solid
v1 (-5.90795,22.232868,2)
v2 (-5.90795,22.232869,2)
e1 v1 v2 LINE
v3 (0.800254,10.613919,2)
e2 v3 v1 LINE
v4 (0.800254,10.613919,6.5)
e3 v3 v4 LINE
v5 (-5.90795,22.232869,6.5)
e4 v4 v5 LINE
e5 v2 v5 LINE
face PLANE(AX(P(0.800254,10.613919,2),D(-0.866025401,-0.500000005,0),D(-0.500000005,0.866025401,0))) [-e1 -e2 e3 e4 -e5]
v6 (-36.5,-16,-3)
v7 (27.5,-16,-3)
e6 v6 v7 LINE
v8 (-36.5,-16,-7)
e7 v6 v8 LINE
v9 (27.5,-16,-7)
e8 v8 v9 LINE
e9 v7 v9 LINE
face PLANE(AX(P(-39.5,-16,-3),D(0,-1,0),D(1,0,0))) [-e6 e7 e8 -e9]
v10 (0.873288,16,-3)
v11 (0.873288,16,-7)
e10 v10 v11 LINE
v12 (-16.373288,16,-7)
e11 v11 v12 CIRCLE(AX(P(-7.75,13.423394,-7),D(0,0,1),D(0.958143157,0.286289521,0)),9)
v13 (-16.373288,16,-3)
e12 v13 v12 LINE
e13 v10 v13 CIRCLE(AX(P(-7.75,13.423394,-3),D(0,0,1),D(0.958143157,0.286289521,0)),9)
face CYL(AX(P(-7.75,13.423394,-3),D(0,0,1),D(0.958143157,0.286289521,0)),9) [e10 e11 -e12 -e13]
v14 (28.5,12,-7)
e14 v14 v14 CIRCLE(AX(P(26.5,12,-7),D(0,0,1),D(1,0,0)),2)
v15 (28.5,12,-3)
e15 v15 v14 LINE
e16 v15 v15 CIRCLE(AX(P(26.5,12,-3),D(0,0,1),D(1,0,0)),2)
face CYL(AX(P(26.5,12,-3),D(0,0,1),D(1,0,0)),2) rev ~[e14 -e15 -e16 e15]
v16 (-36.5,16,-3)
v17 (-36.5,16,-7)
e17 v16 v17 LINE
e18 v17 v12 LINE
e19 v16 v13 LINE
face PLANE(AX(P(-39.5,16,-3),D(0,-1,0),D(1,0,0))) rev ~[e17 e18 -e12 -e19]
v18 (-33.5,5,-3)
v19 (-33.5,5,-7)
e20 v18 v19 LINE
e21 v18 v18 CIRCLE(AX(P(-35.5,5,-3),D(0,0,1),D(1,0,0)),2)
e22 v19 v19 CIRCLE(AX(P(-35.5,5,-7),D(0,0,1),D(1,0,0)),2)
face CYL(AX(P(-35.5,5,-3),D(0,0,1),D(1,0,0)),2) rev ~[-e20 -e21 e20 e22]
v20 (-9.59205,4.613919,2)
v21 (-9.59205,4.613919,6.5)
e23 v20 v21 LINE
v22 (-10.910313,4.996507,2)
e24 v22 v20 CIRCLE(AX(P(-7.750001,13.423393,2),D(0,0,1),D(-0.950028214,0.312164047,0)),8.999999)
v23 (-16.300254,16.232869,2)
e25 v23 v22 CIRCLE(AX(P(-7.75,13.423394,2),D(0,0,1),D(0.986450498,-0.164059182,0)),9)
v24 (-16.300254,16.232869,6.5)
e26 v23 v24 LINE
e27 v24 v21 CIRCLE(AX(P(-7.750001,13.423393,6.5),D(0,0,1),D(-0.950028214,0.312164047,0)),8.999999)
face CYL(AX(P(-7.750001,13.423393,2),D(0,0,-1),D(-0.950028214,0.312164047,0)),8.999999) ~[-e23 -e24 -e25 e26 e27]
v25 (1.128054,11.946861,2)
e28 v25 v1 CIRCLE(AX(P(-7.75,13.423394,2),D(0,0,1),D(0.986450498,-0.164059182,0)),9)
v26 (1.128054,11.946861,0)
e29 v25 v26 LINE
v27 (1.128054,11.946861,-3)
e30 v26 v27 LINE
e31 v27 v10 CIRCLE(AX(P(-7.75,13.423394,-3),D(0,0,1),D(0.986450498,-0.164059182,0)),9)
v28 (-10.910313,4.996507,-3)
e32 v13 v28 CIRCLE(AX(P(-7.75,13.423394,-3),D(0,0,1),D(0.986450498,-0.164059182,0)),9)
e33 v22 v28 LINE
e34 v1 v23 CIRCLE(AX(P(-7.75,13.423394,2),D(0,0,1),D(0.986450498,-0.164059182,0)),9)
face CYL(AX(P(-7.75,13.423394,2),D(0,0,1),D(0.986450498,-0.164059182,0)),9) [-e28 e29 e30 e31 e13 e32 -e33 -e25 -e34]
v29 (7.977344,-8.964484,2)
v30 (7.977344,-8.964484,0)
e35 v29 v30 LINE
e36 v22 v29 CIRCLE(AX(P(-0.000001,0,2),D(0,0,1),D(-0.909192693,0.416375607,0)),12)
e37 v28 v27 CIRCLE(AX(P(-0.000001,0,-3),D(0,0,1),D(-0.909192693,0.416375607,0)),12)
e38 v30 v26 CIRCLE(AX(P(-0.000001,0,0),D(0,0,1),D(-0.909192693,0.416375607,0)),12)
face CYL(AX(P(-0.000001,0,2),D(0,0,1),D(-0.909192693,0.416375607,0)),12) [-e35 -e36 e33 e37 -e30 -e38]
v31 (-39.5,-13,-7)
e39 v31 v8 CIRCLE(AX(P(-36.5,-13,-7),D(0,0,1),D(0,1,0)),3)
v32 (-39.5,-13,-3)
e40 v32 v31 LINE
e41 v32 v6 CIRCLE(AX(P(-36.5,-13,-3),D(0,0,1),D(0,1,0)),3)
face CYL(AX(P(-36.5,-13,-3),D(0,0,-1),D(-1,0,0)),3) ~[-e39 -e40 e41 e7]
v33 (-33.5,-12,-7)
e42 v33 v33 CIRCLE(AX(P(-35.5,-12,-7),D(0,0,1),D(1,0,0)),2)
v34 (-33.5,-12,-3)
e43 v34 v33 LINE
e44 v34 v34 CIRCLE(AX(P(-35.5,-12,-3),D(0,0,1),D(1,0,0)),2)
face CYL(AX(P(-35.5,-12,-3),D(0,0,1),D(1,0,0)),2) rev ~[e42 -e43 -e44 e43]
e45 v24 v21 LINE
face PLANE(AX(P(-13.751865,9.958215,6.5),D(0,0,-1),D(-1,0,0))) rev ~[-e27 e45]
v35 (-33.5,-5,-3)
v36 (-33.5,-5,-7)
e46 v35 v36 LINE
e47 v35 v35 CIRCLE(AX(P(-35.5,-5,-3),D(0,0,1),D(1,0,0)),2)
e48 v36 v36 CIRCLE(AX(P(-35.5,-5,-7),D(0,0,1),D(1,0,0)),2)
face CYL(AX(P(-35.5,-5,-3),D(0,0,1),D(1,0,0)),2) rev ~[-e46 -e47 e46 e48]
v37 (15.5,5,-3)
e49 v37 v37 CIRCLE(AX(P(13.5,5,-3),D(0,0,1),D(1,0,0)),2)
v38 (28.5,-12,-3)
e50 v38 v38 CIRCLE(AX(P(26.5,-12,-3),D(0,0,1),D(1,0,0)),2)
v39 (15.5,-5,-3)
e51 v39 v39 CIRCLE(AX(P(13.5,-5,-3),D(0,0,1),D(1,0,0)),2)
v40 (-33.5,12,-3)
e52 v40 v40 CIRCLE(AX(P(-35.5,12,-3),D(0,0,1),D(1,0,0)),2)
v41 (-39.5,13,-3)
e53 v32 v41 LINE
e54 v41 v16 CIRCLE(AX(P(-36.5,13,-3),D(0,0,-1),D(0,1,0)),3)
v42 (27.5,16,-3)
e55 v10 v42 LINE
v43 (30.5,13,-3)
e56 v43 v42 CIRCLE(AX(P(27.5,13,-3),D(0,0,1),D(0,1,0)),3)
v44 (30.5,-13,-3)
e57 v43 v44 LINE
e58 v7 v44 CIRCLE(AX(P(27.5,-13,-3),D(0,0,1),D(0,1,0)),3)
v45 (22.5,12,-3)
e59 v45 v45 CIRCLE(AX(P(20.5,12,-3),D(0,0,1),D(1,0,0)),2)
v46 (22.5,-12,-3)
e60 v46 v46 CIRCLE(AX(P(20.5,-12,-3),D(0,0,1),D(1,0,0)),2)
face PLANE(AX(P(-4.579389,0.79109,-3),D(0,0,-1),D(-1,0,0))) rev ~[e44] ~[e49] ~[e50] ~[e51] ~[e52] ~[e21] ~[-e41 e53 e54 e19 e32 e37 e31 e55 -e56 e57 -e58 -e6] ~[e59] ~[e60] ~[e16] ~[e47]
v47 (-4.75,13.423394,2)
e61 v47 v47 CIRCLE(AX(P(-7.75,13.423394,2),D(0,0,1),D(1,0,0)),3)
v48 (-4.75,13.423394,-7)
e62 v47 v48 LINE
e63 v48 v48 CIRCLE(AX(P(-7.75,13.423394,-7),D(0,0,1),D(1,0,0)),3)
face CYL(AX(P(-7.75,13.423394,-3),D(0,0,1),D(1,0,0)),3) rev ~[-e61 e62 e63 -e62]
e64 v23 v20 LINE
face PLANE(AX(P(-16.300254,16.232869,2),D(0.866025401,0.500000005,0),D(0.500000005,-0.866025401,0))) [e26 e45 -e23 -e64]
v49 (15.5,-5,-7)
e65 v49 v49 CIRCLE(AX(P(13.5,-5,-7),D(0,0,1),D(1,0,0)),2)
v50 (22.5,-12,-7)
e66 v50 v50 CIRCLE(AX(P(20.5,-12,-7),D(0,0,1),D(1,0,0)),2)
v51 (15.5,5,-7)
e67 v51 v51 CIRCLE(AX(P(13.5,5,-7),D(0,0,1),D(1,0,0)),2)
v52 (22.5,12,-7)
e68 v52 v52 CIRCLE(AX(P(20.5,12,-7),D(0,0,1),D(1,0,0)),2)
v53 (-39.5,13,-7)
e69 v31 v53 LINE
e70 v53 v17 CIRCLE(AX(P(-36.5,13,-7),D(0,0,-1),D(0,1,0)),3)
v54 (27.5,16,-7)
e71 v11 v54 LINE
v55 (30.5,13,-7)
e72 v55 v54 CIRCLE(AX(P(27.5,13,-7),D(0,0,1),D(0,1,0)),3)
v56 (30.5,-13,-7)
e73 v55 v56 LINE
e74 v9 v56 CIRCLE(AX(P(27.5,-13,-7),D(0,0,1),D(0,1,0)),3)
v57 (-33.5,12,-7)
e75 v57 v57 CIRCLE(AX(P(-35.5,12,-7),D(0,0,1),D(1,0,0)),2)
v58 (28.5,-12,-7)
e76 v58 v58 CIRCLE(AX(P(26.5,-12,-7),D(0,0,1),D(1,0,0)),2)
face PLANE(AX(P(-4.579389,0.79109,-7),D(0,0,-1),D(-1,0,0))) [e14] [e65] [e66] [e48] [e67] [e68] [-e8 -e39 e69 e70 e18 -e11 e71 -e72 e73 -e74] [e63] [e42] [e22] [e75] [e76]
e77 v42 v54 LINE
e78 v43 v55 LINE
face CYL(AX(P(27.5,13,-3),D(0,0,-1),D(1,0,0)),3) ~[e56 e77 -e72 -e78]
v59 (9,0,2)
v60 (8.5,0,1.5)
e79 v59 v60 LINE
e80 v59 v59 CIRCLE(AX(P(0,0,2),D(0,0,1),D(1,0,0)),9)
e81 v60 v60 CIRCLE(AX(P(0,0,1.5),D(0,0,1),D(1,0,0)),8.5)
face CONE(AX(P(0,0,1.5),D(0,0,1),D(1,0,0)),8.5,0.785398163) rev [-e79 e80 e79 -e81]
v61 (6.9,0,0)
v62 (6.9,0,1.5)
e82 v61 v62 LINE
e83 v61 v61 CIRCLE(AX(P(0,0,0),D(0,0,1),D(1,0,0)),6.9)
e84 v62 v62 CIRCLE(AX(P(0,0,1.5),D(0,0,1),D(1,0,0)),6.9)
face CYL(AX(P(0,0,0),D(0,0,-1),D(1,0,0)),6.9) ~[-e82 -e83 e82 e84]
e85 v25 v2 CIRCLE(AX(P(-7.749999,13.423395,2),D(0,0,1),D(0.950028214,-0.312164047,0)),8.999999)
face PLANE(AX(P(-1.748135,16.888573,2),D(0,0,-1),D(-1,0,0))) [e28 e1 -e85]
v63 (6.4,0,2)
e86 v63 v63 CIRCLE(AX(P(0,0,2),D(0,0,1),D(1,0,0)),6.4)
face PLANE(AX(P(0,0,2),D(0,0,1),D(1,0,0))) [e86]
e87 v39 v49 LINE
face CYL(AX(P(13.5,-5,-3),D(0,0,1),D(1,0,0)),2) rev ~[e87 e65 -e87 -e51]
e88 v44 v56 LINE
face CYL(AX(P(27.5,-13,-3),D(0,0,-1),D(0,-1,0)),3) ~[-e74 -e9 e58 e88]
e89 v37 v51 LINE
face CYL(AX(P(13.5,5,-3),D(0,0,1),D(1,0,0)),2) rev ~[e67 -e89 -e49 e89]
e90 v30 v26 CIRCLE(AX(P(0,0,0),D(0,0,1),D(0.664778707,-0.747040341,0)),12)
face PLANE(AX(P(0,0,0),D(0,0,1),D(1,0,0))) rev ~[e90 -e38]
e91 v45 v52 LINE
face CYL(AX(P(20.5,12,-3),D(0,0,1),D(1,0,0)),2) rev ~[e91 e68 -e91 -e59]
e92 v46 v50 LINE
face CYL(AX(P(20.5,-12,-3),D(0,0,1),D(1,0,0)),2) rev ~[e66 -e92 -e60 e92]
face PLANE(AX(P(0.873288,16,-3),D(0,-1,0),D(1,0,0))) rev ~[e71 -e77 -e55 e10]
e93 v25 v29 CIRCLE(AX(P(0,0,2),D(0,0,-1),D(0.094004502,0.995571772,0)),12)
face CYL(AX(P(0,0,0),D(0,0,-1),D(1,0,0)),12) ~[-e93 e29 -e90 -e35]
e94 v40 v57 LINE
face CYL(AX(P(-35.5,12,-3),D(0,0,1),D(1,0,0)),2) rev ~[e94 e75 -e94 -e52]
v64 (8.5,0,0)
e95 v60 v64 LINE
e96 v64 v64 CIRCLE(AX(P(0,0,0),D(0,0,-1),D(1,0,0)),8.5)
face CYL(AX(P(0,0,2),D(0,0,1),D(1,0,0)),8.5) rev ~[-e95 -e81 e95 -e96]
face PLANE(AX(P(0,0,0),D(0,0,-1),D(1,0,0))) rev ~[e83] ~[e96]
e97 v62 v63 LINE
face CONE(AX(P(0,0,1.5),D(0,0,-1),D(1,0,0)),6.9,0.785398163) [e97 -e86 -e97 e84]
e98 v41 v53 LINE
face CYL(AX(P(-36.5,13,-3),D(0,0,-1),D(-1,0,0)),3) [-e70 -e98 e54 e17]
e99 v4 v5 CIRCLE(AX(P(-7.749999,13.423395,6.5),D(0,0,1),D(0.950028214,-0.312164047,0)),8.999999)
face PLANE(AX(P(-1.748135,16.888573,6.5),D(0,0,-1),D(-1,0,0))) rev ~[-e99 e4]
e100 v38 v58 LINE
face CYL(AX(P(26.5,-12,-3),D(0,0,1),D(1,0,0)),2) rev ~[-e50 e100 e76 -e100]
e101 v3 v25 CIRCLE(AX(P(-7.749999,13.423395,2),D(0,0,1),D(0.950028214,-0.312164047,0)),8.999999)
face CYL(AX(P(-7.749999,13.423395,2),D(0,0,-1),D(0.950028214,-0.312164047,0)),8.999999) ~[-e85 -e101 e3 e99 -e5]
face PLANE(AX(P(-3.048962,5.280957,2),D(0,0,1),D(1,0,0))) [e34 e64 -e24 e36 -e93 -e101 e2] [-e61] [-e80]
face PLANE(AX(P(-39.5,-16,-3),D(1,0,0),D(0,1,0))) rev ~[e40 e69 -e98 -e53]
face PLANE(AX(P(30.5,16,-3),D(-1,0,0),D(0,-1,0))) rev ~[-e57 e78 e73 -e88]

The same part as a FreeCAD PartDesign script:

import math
import FreeCAD as App
import Part
import Sketcher
Q = App.Units.Quantity


def edges_at(feature, points):
    """Names of the edges that pass closest to the given points."""
    edges = feature.Shape.Edges
    near = lambda p: min(range(len(edges)), key=lambda i: edges[i].distToShape(Part.Vertex(*p))[0])
    return sorted({f"Edge{near(p) + 1}" for p in points})

doc = App.newDocument("Part")
params = doc.addObject("Spreadsheet::Sheet", "Params")
for row, (alias, value) in enumerate([
    ("sketch1_diameter", "24 mm"),
    ("sketch1_diameter2", "17 mm"),
    ("pad1_length", "2 mm"),
    ("sketch2_diameter", "17 mm"),
    ("sketch2_diameter2", "6 mm"),
    ("sketch2_radius", "9 mm"),
    ("sketch2_radius2", "12 mm"),
    ("pad2_length", "5 mm"),
    ("sketch3_diameter", "17 mm"),
    ("pad3_length", "3 mm"),
    ("sketch4_diameter", "13.8 mm"),
    ("pad4_length", "2 mm"),
    ("sketch5_radius", "8.999999 mm"),
    ("pad5_length", "4.5 mm"),
    ("sketch6_diameter", "4 mm"),
    ("sketch6_radius", "9 mm"),
    ("sketch6_width", "70 mm"),
    ("sketch6_height", "32 mm"),
    ("pad6_length", "4 mm"),
    ("sketch7_diameter", "6 mm"),
    ("pocket1_length", "5 mm"),
    ("chamfer_size", "0.5 mm"),
    ("chamfer2_size", "0.5 mm"),
    ("fillet_radius", "3 mm"),
], start=1):
    params.set(f"A{row}", alias)
    params.set(f"B{row}", "=" + value)
    params.setAlias(f"B{row}", alias)

body = doc.addObject("PartDesign::Body", "Body")

# Sketch on XY plane
sketch1 = doc.addObject("Sketcher::SketchObject", "Sketch")
body.addObject(sketch1)
sketch1.AttachmentSupport = (doc.XY_Plane, [""])
sketch1.MapMode = "FlatFace"
sketch1.addGeometry([
    Part.Circle(App.Vector(0, 0, 0), App.Vector(0, 0, 1), 12),
    Part.Circle(App.Vector(0, 0, 0), App.Vector(0, 0, 1), 8),
], False)
sketch1.addConstraint([
    Sketcher.Constraint("Coincident", 0, 3, -1, 1),
    Sketcher.Constraint("Coincident", 1, 3, -1, 1),
    Sketcher.Constraint("Diameter", 0, 24.0),
    Sketcher.Constraint("Diameter", 1, 17.0),
])
sketch1.setExpression("Constraints[2]", "Params.sketch1_diameter")
sketch1.setExpression("Constraints[3]", "Params.sketch1_diameter2")
pad1 = doc.addObject("PartDesign::Pad", "Pad")
body.addObject(pad1)
pad1.Profile = sketch1
pad1.setExpression("Length", "Params.pad1_length")

# Sketch on XY plane
sketch2 = doc.addObject("Sketcher::SketchObject", "Sketch001")
body.addObject(sketch2)
sketch2.AttachmentSupport = (doc.XY_Plane, [""])
sketch2.MapMode = "FlatFace"
sketch2.AttachmentOffset = App.Placement(App.Vector(0, 0, 2), App.Rotation())
sketch2.addGeometry([
    Part.ArcOfCircle(Part.Circle(App.Vector(-7.8, 13.4, 0), App.Vector(0, 0, 1), 9), math.radians(-9), math.radians(249)),
    Part.ArcOfCircle(Part.Circle(App.Vector(0, 0, 0), App.Vector(0, 0, 1), 12), math.radians(155), math.radians(445)),
    Part.Circle(App.Vector(0, 0, 0), App.Vector(0, 0, 1), 8.5),
    Part.Circle(App.Vector(-7.8, 13.4, 0), App.Vector(0, 0, 1), 3),
], False)
sketch2.addConstraint([
    Sketcher.Constraint("Coincident", 0, 1, 1, 2),
    Sketcher.Constraint("Coincident", 1, 1, 0, 2),
    Sketcher.Constraint("Coincident", 1, 3, -1, 1),
    Sketcher.Constraint("Coincident", 2, 3, -1, 1),
    Sketcher.Constraint("Coincident", 3, 3, 0, 3),
    Sketcher.Constraint("Diameter", 2, 17.0),
    Sketcher.Constraint("Diameter", 3, 6.0),
    Sketcher.Constraint("Radius", 0, 9.0),
    Sketcher.Constraint("Radius", 1, 12.0),
    Sketcher.Constraint("DistanceX", 0, 3, -1, 1, 7.75),
    Sketcher.Constraint("DistanceY", -1, 1, 0, 3, 13.423394),
])
sketch2.setExpression("Constraints[5]", "Params.sketch2_diameter")
sketch2.setExpression("Constraints[6]", "Params.sketch2_diameter2")
sketch2.setExpression("Constraints[7]", "Params.sketch2_radius")
sketch2.setExpression("Constraints[8]", "Params.sketch2_radius2")
pad2 = doc.addObject("PartDesign::Pad", "Pad001")
body.addObject(pad2)
pad2.Profile = sketch2
pad2.setExpression("Length", "Params.pad2_length")
pad2.Reversed = True

# Sketch on XY plane
sketch3 = doc.addObject("Sketcher::SketchObject", "Sketch002")
body.addObject(sketch3)
sketch3.AttachmentSupport = (doc.XY_Plane, [""])
sketch3.MapMode = "FlatFace"
sketch3.AttachmentOffset = App.Placement(App.Vector(0, 0, -3), App.Rotation())
sketch3.addGeometry(Part.Circle(App.Vector(0, 0, 0), App.Vector(0, 0, 1), 8), False)
sketch3.addConstraint([
    Sketcher.Constraint("Coincident", 0, 3, -1, 1),
    Sketcher.Constraint("Diameter", 0, 17.0),
])
sketch3.setExpression("Constraints[1]", "Params.sketch3_diameter")
pad3 = doc.addObject("PartDesign::Pad", "Pad002")
body.addObject(pad3)
pad3.Profile = sketch3
pad3.setExpression("Length", "Params.pad3_length")

# Sketch on XY plane
sketch4 = doc.addObject("Sketcher::SketchObject", "Sketch003")
body.addObject(sketch4)
sketch4.AttachmentSupport = (doc.XY_Plane, [""])
sketch4.MapMode = "FlatFace"
sketch4.addGeometry(Part.Circle(App.Vector(0, 0, 0), App.Vector(0, 0, 1), 7), False)
sketch4.addConstraint([
    Sketcher.Constraint("Coincident", 0, 3, -1, 1),
    Sketcher.Constraint("Diameter", 0, 13.8),
])
sketch4.setExpression("Constraints[1]", "Params.sketch4_diameter")
pad4 = doc.addObject("PartDesign::Pad", "Pad003")
body.addObject(pad4)
pad4.Profile = sketch4
pad4.setExpression("Length", "Params.pad4_length")

# Sketch on XY plane
sketch5 = doc.addObject("Sketcher::SketchObject", "Sketch004")
body.addObject(sketch5)
sketch5.AttachmentSupport = (doc.XY_Plane, [""])
sketch5.MapMode = "FlatFace"
sketch5.AttachmentOffset = App.Placement(App.Vector(0, 0, 2), App.Rotation())
sketch5.addGeometry([
    Part.LineSegment(App.Vector(-10, 5, 0), App.Vector(-16, 16, 0)),
    Part.ArcOfCircle(Part.Circle(App.Vector(-8, 13, 0), App.Vector(0, 0, 1), 9), math.radians(162), math.radians(258)),
    Part.LineSegment(App.Vector(-6, 22, 0), App.Vector(1, 11, 0)),
    Part.ArcOfCircle(Part.Circle(App.Vector(-8, 13, 0), App.Vector(0, 0, 1), 9), math.radians(-18), math.radians(78)),
], False)
sketch5.addConstraint([
    Sketcher.Constraint("Coincident", 0, 1, 1, 2),
    Sketcher.Constraint("Coincident", 1, 1, 0, 2),
    Sketcher.Constraint("Coincident", 2, 1, 3, 2),
    Sketcher.Constraint("Coincident", 3, 1, 2, 2),
    Sketcher.Constraint("Coincident", 3, 3, 1, 3),
    Sketcher.Constraint("Equal", 1, 3),
    Sketcher.Constraint("Parallel", 0, 2),
    Sketcher.Constraint("Equal", 0, 2),
    Sketcher.Constraint("Radius", 1, 8.999999),
    Sketcher.Constraint("Angle", 0, Q("120 deg")),
    Sketcher.Constraint("DistanceY", 1, 1, 2, 1, 6.0),
    Sketcher.Constraint("DistanceX", 1, 3, -1, 1, 7.750001),
    Sketcher.Constraint("DistanceY", -1, 1, 0, 1, 4.613919),
])
sketch5.setExpression("Constraints[8]", "Params.sketch5_radius")
pad5 = doc.addObject("PartDesign::Pad", "Pad004")
body.addObject(pad5)
pad5.Profile = sketch5
pad5.setExpression("Length", "Params.pad5_length")

# Sketch on XY plane
sketch6 = doc.addObject("Sketcher::SketchObject", "Sketch005")
body.addObject(sketch6)
sketch6.AttachmentSupport = (doc.XY_Plane, [""])
sketch6.MapMode = "FlatFace"
sketch6.AttachmentOffset = App.Placement(App.Vector(0, 0, -3), App.Rotation())
sketch6.addGeometry([
    Part.LineSegment(App.Vector(-16.4, 16, 0), App.Vector(-39.5, 16, 0)),  # 0
    Part.LineSegment(App.Vector(-39.5, 16, 0), App.Vector(-39.5, -16, 0)),  # 1
    Part.LineSegment(App.Vector(-39.5, -16, 0), App.Vector(30.5, -16, 0)),  # 2
    Part.LineSegment(App.Vector(30.5, -16, 0), App.Vector(30.5, 16, 0)),  # 3
    Part.LineSegment(App.Vector(30.5, 16, 0), App.Vector(0.9, 16, 0)),  # 4
    Part.ArcOfCircle(Part.Circle(App.Vector(-7.8, 13.4, 0), App.Vector(0, 0, 1), 9), math.radians(17), math.radians(163)),  # 5
    Part.Circle(App.Vector(26.5, -12, 0), App.Vector(0, 0, 1), 2),  # 6
    Part.Circle(App.Vector(20.5, -12, 0), App.Vector(0, 0, 1), 2),  # 7
    Part.Circle(App.Vector(13.5, -5, 0), App.Vector(0, 0, 1), 2),  # 8
    Part.Circle(App.Vector(-35.5, -12, 0), App.Vector(0, 0, 1), 2),  # 9
    Part.Circle(App.Vector(-35.5, -5, 0), App.Vector(0, 0, 1), 2),  # 10
    Part.Circle(App.Vector(13.5, 5, 0), App.Vector(0, 0, 1), 2),  # 11
    Part.Circle(App.Vector(26.5, 12, 0), App.Vector(0, 0, 1), 2),  # 12
    Part.Circle(App.Vector(20.5, 12, 0), App.Vector(0, 0, 1), 2),  # 13
    Part.Circle(App.Vector(-35.5, 5, 0), App.Vector(0, 0, 1), 2),  # 14
    Part.Circle(App.Vector(-35.5, 12, 0), App.Vector(0, 0, 1), 2),  # 15
], False)
sketch6.addConstraint([
    Sketcher.Constraint("Coincident", 0, 2, 1, 1),
    Sketcher.Constraint("Coincident", 1, 2, 2, 1),
    Sketcher.Constraint("Coincident", 2, 2, 3, 1),
    Sketcher.Constraint("Coincident", 3, 2, 4, 1),
    Sketcher.Constraint("Coincident", 4, 2, 5, 1),
    Sketcher.Constraint("Coincident", 5, 2, 0, 1),
    Sketcher.Constraint("Horizontal", 0),
    Sketcher.Constraint("Vertical", 1),
    Sketcher.Constraint("Horizontal", 2),
    Sketcher.Constraint("Vertical", 3),
    Sketcher.Constraint("Horizontal", 4),
    Sketcher.Constraint("Equal", 6, 7),
    Sketcher.Constraint("Equal", 7, 8),
    Sketcher.Constraint("Equal", 8, 9),
    Sketcher.Constraint("Equal", 9, 10),
    Sketcher.Constraint("Equal", 10, 11),
    Sketcher.Constraint("Equal", 11, 12),
    Sketcher.Constraint("Equal", 12, 13),
    Sketcher.Constraint("Equal", 13, 14),
    Sketcher.Constraint("Equal", 14, 15),
    Sketcher.Constraint("Symmetric", 8, 3, 11, 3, -1),
    Sketcher.Constraint("Symmetric", 6, 3, 12, 3, -1),
    Sketcher.Constraint("Symmetric", 7, 3, 13, 3, -1),
    Sketcher.Constraint("Symmetric", 10, 3, 14, 3, -1),
    Sketcher.Constraint("Symmetric", 9, 3, 15, 3, -1),
    Sketcher.Constraint("Horizontal", 6, 3, 7, 3),
    Sketcher.Constraint("Horizontal", 7, 3, 9, 3),
    Sketcher.Constraint("Horizontal", 8, 3, 10, 3),
    Sketcher.Constraint("Horizontal", 0, 2, 3, 2),
    Sketcher.Constraint("Vertical", 9, 3, 10, 3),
    Sketcher.Constraint("Diameter", 6, 4.0),
    Sketcher.Constraint("Radius", 5, 9.0),
    Sketcher.Constraint("DistanceX", 2, 1, 2, 2, 70.0),
    Sketcher.Constraint("DistanceY", 1, 2, 1, 1, 32.0),
    Sketcher.Constraint("DistanceY", 6, 3, -1, 1, 12.0),
    Sketcher.Constraint("DistanceY", 8, 3, -1, 1, 5.0),
    Sketcher.Constraint("DistanceY", -1, 1, 0, 2, 16.0),
    Sketcher.Constraint("DistanceX", 7, 3, 6, 3, 6.0),
    Sketcher.Constraint("DistanceX", 8, 3, 7, 3, 7.0),
    Sketcher.Constraint("DistanceX", 9, 3, 8, 3, 49.0),
    Sketcher.Constraint("DistanceX", 0, 2, 15, 3, 4.0),
    Sketcher.Constraint("DistanceX", -1, 1, 6, 3, 26.5),
    Sketcher.Constraint("DistanceX", 5, 3, -1, 1, 7.75),
    Sketcher.Constraint("DistanceX", 0, 2, 0, 1, 23.126712),
])
sketch6.setExpression("Constraints[30]", "Params.sketch6_diameter")
sketch6.setExpression("Constraints[31]", "Params.sketch6_radius")
sketch6.setExpression("Constraints[32]", "Params.sketch6_width")
sketch6.setExpression("Constraints[33]", "Params.sketch6_height")
pad6 = doc.addObject("PartDesign::Pad", "Pad005")
body.addObject(pad6)
pad6.Profile = sketch6
pad6.setExpression("Length", "Params.pad6_length")
pad6.Reversed = True

# Sketch on XY plane
sketch7 = doc.addObject("Sketcher::SketchObject", "Sketch006")
body.addObject(sketch7)
sketch7.AttachmentSupport = (doc.XY_Plane, [""])
sketch7.MapMode = "FlatFace"
sketch7.AttachmentOffset = App.Placement(App.Vector(0, 0, -3), App.Rotation())
sketch7.addGeometry(Part.Circle(App.Vector(-7.8, 13.4, 0), App.Vector(0, 0, 1), 3), False)
sketch7.addConstraint([
    Sketcher.Constraint("Diameter", 0, 6.0),
    Sketcher.Constraint("DistanceX", 0, 3, -1, 1, 7.75),
    Sketcher.Constraint("DistanceY", -1, 1, 0, 3, 13.423394),
])
sketch7.setExpression("Constraints[0]", "Params.sketch7_diameter")
pocket1 = doc.addObject("PartDesign::Pocket", "Pocket")
body.addObject(pocket1)
pocket1.Profile = sketch7
pocket1.setExpression("Length", "Params.pocket1_length")
doc.recompute()

chamfer = doc.addObject("PartDesign::Chamfer", "Chamfer")
body.addObject(chamfer)
chamfer.Base = (pocket1, edges_at(pocket1, [(-8.5, 0, 2)]))
chamfer.setExpression("Size", "Params.chamfer_size")
doc.recompute()

chamfer2 = doc.addObject("PartDesign::Chamfer", "Chamfer001")
body.addObject(chamfer2)
chamfer2.Base = (chamfer, edges_at(chamfer, [(-6.9, 0, 2)]))
chamfer2.setExpression("Size", "Params.chamfer2_size")
doc.recompute()

fillet = doc.addObject("PartDesign::Fillet", "Fillet")
body.addObject(fillet)
fillet.Base = (chamfer2, edges_at(chamfer2, [
    (-39.5, -16, -5),
    (-39.5, 16, -5),
    (30.5, -16, -5),
    (30.5, 16, -5),
]))
fillet.setExpression("Radius", "Params.fillet_radius")

doc.recompute()
